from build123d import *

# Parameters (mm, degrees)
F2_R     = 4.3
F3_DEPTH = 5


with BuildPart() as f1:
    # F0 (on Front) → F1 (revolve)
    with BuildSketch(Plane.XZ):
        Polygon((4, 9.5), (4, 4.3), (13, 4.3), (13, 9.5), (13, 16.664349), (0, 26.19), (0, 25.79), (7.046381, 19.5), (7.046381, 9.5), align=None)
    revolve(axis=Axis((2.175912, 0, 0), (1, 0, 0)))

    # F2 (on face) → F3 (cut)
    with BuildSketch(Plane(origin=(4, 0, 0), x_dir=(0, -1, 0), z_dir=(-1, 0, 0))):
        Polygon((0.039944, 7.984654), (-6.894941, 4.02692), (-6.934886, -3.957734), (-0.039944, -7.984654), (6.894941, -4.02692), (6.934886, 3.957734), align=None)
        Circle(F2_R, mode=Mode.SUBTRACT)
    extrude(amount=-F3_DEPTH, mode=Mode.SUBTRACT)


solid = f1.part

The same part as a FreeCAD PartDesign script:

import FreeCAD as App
import Part
import Sketcher

V = App.Vector
Q = App.Units.Quantity


def add_polygon(sketch, points):
    """Adds a closed chain of lines whose ends are joined by coincident constraints."""
    first, n = sketch.GeometryCount, len(points)
    for a, b in zip(points, points[1:] + points[:1]):
        sketch.addGeometry(Part.LineSegment(App.Vector(*a, 0), App.Vector(*b, 0)), False)
    for i in range(n):
        sketch.addConstraint(Sketcher.Constraint("Coincident", first + i, 2, first + (i + 1) % n, 1))

doc = App.newDocument("Part")
body = doc.addObject("PartDesign::Body", "Body")

# Sketch on XZ plane
sketch1 = doc.addObject("Sketcher::SketchObject", "Sketch")
body.addObject(sketch1)
sketch1.AttachmentSupport = (doc.XZ_Plane, [""])
sketch1.MapMode = "FlatFace"
add_polygon(sketch1, [(4, 9.5), (4, 4.3), (13, 4.3), (13, 16.664349), (0, 26.19), (0, 25.79), (7.046381, 19.5), (7.046381, 9.5)])  # lines 0-7
sketch1.addConstraint([
    Sketcher.Constraint("Vertical", 0),
    Sketcher.Constraint("Horizontal", 1),
    Sketcher.Constraint("Vertical", 2),
    Sketcher.Constraint("Vertical", 4),
    Sketcher.Constraint("Vertical", 6),
    Sketcher.Constraint("Horizontal", 7),
    Sketcher.Constraint("PointOnObject", 3, 2, -2),
    Sketcher.Constraint("DistanceX", 1, 1, 1, 2, Q("9 mm")),
    Sketcher.Constraint("DistanceY", 6, 2, 6, 1, Q("10 mm")),
    Sketcher.Constraint("DistanceY", 0, 2, 0, 1, Q("5.2 mm")),
    Sketcher.Constraint("DistanceY", 4, 2, 4, 1, Q("0.4 mm")),
    Sketcher.Constraint("DistanceX", -1, 1, 0, 2, Q("4 mm")),
    Sketcher.Constraint("DistanceY", -1, 1, 0, 2, Q("4.3 mm")),
    Sketcher.Constraint("DistanceY", -1, 1, 3, 2, Q("26.19 mm")),
    Sketcher.Constraint("Distance", 5, Q("9.4454 mm")),
    Sketcher.Constraint("DistanceY", 2, 1, 2, 2, Q("12.364349 mm")),
])
revolution = doc.addObject("PartDesign::Revolution", "Revolution")
body.addObject(revolution)
revolution.Profile = sketch1
revolution.ReferenceAxis = (sketch1, ["H_Axis"])
revolution.Angle = 360

# Sketch on YZ plane
sketch2 = doc.addObject("Sketcher::SketchObject", "Sketch001")
body.addObject(sketch2)
sketch2.AttachmentSupport = (doc.YZ_Plane, [""])
sketch2.MapMode = "FlatFace"
sketch2.AttachmentOffset = App.Placement(V(0, 0, 4), App.Rotation())
add_polygon(sketch2, [(-0.039944, 7.984654), (6.894941, 4.02692), (6.934886, -3.957734), (0.039944, -7.984654), (-6.894941, -4.02692), (-6.934886, 3.957734)])  # lines 0-5
sketch2.addGeometry(Part.Circle(V(0, 0, 0), V(0, 0, 1), 4.3), False)  # 6
sketch2.addConstraint([
    Sketcher.Constraint("Coincident", 6, 3, -1, 1),
    Sketcher.Constraint("Symmetric", 0, 2, 3, 2, -1, 1),
    Sketcher.Constraint("Symmetric", 1, 2, 4, 2, -1, 1),
    Sketcher.Constraint("Symmetric", 2, 2, 5, 2, -1, 1),
    Sketcher.Constraint("Equal", 0, 1),
    Sketcher.Constraint("Equal", 1, 2),
    Sketcher.Constraint("Diameter", 6, Q("8.6 mm")),
    Sketcher.Constraint("DistanceX", -1, 1, 0, 2, Q("6.894941 mm")),
    Sketcher.Constraint("DistanceY", -1, 1, 0, 2, Q("4.02692 mm")),
    Sketcher.Constraint("DistanceX", 2, 2, 1, 2, Q("6.894942 mm")),
    Sketcher.Constraint("DistanceY", 2, 2, 1, 2, Q("4.02692 mm")),
])
pocket1 = doc.addObject("PartDesign::Pocket", "Pocket")
body.addObject(pocket1)
pocket1.Profile = sketch2
pocket1.Length = 5
pocket1.Reversed = True

doc.recompute()
